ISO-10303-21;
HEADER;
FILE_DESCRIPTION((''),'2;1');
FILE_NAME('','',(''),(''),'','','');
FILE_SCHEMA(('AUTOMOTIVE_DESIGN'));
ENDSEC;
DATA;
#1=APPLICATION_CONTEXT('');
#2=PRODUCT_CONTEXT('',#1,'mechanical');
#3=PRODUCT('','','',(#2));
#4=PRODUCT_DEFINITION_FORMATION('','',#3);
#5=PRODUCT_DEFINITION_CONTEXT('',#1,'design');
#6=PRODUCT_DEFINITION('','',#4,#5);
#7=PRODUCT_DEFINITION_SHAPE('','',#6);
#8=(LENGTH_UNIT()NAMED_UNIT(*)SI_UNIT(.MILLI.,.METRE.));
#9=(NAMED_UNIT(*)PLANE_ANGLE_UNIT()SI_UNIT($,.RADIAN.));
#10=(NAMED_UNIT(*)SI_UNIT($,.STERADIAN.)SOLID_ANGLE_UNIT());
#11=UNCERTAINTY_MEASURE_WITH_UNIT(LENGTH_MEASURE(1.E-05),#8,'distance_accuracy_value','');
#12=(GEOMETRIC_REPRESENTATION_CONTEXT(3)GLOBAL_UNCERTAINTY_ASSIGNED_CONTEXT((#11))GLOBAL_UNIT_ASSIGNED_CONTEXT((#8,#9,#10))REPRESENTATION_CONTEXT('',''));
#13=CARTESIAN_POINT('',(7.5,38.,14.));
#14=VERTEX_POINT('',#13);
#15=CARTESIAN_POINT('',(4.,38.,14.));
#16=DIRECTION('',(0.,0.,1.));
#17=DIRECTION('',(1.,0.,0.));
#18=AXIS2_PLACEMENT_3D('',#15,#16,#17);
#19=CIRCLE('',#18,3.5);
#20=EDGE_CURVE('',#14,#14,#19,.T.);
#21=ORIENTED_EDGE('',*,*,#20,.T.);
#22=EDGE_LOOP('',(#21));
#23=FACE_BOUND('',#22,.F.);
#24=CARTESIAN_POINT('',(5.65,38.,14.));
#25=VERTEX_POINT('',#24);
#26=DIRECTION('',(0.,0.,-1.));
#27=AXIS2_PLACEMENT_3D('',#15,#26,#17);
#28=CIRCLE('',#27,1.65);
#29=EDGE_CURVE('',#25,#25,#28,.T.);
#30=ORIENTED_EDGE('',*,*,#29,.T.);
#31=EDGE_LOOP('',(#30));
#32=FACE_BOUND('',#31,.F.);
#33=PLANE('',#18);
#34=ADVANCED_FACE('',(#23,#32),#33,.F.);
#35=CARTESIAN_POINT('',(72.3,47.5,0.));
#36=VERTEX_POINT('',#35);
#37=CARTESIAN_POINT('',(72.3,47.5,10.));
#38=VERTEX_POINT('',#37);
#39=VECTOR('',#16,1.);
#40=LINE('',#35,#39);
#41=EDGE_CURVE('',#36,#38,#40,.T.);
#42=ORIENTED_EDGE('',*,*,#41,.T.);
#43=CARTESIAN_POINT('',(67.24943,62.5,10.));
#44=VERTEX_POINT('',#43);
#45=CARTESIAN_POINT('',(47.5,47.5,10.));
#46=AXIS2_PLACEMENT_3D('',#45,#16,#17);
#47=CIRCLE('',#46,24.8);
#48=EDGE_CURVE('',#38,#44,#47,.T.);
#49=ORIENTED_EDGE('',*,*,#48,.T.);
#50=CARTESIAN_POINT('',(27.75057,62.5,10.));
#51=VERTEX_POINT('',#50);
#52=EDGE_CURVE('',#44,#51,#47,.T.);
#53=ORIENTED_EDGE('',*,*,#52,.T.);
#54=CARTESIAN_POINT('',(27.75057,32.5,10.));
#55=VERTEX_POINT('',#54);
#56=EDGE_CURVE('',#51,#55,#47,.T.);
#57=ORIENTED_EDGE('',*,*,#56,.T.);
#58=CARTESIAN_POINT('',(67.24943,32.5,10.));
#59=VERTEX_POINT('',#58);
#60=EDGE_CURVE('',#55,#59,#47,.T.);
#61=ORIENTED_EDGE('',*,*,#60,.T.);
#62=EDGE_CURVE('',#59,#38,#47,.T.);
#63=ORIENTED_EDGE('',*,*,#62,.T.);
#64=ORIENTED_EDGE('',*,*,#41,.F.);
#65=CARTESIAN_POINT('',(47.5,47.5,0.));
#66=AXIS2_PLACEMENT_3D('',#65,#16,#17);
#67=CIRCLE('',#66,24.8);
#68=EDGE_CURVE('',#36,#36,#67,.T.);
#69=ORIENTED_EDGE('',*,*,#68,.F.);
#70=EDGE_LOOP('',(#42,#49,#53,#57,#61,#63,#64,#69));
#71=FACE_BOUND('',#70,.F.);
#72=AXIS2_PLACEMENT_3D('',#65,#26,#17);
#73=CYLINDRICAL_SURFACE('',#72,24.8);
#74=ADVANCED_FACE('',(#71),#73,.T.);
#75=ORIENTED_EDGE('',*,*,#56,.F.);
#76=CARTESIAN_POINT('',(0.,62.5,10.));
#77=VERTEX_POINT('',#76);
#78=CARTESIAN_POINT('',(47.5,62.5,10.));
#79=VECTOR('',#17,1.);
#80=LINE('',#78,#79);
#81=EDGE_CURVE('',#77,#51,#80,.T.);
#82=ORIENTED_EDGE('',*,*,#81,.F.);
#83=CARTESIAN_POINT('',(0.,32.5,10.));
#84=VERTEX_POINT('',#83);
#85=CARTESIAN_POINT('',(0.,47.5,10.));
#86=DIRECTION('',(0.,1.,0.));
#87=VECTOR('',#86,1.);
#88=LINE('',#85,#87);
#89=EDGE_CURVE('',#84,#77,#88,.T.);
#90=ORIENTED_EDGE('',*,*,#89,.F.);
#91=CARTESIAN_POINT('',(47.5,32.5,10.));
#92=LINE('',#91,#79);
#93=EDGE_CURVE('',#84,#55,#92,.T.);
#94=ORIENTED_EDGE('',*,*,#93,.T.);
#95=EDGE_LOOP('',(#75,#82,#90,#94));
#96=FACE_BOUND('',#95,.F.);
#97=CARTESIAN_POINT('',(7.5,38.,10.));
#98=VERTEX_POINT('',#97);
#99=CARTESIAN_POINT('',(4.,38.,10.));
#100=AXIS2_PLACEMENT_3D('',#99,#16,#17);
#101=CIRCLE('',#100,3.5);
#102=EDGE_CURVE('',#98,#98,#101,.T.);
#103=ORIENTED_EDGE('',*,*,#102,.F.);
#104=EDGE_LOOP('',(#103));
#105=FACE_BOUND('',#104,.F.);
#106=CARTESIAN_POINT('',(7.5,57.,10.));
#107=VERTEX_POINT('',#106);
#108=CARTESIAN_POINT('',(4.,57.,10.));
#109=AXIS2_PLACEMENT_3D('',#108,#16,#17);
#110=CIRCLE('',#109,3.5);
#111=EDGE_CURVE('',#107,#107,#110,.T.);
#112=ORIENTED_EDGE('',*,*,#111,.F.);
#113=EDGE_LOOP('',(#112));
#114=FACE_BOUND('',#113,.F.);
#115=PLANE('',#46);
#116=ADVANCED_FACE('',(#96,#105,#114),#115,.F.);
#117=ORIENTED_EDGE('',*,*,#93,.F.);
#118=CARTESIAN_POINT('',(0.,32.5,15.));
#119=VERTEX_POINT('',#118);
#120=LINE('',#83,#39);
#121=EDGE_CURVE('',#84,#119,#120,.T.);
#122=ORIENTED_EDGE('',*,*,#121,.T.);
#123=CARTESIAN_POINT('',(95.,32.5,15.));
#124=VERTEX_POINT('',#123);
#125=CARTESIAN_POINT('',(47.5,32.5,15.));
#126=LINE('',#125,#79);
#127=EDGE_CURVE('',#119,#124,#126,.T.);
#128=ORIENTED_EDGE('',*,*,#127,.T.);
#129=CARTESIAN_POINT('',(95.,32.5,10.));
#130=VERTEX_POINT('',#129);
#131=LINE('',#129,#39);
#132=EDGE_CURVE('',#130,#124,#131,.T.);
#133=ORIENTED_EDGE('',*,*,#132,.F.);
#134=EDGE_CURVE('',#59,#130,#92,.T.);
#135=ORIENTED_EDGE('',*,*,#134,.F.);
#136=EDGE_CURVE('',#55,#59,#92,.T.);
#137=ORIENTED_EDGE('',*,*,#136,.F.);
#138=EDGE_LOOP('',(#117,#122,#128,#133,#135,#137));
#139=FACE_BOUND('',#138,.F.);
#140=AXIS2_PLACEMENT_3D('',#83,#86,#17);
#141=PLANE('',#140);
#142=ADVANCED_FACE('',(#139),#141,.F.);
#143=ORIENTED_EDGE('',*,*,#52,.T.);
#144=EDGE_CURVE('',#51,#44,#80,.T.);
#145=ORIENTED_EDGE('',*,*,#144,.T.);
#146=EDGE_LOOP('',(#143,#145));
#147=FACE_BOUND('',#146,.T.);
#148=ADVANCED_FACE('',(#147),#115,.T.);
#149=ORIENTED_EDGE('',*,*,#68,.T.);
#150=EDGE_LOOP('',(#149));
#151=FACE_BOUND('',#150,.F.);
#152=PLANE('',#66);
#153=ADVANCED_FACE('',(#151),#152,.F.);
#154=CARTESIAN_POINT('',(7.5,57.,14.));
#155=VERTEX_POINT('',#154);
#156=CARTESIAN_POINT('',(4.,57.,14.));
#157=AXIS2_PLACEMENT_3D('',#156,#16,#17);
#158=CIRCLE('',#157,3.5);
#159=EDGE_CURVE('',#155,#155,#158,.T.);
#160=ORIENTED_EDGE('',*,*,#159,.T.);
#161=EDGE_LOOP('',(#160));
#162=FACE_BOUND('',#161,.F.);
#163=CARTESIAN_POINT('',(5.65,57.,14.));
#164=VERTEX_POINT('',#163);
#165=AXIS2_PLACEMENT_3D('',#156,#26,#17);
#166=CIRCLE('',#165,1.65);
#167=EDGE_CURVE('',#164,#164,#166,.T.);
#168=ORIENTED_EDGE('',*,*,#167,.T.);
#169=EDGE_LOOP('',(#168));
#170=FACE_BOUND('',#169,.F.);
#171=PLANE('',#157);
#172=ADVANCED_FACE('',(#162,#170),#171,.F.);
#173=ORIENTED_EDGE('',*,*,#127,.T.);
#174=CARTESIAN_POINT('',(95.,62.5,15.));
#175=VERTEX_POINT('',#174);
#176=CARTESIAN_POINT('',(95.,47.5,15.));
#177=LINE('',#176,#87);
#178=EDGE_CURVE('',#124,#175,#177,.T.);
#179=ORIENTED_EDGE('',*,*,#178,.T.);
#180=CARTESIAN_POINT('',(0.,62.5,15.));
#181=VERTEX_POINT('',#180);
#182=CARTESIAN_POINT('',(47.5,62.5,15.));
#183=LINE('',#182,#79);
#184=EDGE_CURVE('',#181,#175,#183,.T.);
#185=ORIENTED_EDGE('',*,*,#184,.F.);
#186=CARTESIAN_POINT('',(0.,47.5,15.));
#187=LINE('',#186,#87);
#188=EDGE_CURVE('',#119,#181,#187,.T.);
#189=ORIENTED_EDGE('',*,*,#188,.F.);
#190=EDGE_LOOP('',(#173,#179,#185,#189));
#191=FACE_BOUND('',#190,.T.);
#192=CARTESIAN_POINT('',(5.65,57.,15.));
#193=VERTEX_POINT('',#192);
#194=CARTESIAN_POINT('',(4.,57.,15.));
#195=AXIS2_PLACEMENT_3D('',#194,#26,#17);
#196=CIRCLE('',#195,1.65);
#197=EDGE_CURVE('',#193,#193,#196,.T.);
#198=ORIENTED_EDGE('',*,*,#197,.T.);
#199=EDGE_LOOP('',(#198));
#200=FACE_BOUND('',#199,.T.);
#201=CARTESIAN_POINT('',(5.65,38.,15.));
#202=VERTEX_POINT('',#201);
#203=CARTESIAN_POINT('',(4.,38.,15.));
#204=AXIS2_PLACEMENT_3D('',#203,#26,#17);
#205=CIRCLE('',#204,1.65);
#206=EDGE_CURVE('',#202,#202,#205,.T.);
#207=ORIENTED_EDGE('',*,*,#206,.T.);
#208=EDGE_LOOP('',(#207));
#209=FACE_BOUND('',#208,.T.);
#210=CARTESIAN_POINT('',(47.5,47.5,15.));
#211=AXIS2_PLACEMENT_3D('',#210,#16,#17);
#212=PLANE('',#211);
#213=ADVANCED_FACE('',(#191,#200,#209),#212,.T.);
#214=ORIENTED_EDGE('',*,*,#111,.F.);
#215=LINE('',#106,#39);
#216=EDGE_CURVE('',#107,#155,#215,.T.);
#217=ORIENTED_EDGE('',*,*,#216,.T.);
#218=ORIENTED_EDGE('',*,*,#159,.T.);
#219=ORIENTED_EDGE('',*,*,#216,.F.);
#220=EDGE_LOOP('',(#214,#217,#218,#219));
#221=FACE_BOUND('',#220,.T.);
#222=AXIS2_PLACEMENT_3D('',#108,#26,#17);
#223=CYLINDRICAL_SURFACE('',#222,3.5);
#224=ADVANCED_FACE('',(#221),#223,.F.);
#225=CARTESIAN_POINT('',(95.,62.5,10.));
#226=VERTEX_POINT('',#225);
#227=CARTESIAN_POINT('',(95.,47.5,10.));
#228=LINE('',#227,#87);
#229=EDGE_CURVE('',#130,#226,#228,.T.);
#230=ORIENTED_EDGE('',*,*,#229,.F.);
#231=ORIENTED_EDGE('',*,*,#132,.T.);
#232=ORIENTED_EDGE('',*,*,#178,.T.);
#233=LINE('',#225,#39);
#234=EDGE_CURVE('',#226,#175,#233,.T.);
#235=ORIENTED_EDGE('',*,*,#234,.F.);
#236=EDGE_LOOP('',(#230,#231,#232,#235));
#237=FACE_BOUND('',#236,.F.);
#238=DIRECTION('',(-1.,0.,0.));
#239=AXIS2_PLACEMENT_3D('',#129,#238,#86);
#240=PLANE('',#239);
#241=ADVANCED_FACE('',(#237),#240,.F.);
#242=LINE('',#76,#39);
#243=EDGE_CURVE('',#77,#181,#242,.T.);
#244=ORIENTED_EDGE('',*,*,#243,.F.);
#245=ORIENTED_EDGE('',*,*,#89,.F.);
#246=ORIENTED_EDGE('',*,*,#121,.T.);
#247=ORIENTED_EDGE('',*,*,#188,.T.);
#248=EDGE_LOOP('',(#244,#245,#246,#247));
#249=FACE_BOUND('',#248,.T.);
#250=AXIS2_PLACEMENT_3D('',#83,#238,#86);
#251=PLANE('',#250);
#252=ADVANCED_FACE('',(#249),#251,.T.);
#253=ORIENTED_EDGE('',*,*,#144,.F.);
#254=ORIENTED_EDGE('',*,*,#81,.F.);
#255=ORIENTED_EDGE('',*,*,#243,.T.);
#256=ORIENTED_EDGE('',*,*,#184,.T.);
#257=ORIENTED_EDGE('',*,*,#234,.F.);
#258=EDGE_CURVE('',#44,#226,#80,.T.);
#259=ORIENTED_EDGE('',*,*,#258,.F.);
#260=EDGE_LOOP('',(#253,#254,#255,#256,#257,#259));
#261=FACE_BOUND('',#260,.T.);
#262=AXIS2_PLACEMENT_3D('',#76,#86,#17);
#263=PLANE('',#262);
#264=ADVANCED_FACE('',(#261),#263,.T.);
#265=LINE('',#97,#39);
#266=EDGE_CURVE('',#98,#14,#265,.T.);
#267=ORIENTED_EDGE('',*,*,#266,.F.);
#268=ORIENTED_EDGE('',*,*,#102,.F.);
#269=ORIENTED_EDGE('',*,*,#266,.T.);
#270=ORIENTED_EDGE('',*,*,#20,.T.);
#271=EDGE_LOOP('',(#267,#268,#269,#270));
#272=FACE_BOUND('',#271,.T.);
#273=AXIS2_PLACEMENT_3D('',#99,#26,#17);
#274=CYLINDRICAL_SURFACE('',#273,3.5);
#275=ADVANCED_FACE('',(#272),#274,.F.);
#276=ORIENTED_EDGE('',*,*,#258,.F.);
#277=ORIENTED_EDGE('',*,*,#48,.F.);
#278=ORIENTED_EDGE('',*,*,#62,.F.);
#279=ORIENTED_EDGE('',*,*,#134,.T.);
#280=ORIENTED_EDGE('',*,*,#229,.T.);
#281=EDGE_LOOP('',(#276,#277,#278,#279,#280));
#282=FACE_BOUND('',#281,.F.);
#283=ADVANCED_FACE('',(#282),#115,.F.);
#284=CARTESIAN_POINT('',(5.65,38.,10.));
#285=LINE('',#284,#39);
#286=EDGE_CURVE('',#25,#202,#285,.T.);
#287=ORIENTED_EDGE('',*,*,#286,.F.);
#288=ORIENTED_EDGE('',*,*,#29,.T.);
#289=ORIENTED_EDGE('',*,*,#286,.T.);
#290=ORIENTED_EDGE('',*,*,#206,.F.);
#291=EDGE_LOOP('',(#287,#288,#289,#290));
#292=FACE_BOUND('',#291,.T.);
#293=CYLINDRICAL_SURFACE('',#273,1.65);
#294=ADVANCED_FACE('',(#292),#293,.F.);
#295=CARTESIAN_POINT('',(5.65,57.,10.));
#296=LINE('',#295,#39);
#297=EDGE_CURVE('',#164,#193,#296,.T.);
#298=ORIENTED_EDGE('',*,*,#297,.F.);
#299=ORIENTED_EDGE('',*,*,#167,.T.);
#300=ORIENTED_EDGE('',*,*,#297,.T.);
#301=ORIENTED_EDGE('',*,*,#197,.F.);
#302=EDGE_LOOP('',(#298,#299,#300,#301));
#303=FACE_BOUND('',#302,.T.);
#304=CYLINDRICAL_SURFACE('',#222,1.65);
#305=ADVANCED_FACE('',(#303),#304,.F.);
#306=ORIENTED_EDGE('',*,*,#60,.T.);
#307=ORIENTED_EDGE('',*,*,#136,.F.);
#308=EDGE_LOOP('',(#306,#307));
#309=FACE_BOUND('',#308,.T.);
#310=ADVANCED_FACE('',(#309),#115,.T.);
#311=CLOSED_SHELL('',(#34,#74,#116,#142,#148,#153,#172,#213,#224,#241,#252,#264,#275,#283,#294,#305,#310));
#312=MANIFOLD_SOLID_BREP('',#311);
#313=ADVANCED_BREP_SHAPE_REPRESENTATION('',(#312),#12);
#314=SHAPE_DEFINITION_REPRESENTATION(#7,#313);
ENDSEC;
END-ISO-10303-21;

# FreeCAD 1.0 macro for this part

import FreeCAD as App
import Part
import Sketcher
from FreeCAD import Vector
Q = App.Units.Quantity


def add_polygon(sketch, points):
    """Adds a closed chain of lines whose ends are joined by coincident constraints."""
    first, n = sketch.GeometryCount, len(points)
    for a, b in zip(points, points[1:] + points[:1]):
        sketch.addGeometry(Part.LineSegment(App.Vector(*a, 0), App.Vector(*b, 0)), False)
    for i in range(n):
        sketch.addConstraint(Sketcher.Constraint("Coincident", first + i, 2, first + (i + 1) % n, 1))

doc = App.newDocument("Part")
params = doc.addObject("Spreadsheet::Sheet", "Params")
for row, (alias, value) in enumerate([
    ("sketch1_diameter", "7 mm"),
    ("pad1_length", "4 mm"),
    ("sketch2_diameter", "3.3 mm"),
    ("pad2_length", "20 mm"),
    ("sketch3_diameter", "7 mm"),
    ("pad3_length", "4 mm"),
    ("sketch4_diameter", "3.3 mm"),
    ("pad4_length", "20 mm"),
    ("sketch5_width", "95 mm"),
    ("sketch5_height", "30 mm"),
    ("pad5_length", "5 mm"),
    ("sketch6_diameter", "49.6 mm"),
    ("pad6_length", "10 mm"),
], start=1):
    params.set(f"A{row}", alias)
    params.set(f"B{row}", "=" + value)
    params.setAlias(f"B{row}", alias)

body = doc.addObject("PartDesign::Body", "Body")

# Sketch on XY plane
sketch1 = body.newObject("Sketcher::SketchObject", "Sketch")
sketch1.AttachmentSupport = (doc.getObject("XY_Plane"), [""])
sketch1.MapMode = "FlatFace"
sketch1.addGeometry(Part.Circle(Vector(0, 0, 0), Vector(0, 0, 1), 3.5), False)
sketch1.addConstraint([
    Sketcher.Constraint("Coincident", 0, 3, -1, 1),
    Sketcher.Constraint("Diameter", 0, Q("7 mm")),
])
sketch1.setExpression("Constraints[1]", "Params.sketch1_diameter")
pad1 = body.newObject("PartDesign::Pad", "Pad")
pad1.Profile = sketch1
pad1.setExpression("Length", "Params.pad1_length")
body2 = doc.addObject("PartDesign::Body", "Body001")

# Sketch on XY plane
sketch2 = body2.newObject("Sketcher::SketchObject", "Sketch001")
sketch2.AttachmentSupport = (doc.getObject("XY_Plane001"), [""])
sketch2.MapMode = "FlatFace"
sketch2.addGeometry(Part.Circle(Vector(0, 0, 0), Vector(0, 0, 1), 1.6), False)
sketch2.addConstraint([
    Sketcher.Constraint("Coincident", 0, 3, -1, 1),
    Sketcher.Constraint("Diameter", 0, Q("3.3 mm")),
])
sketch2.setExpression("Constraints[1]", "Params.sketch2_diameter")
pad2 = body2.newObject("PartDesign::Pad", "Pad001")
pad2.Profile = sketch2
pad2.setExpression("Length", "Params.pad2_length")
doc.recompute()

boolean = body2.newObject("PartDesign::Boolean", "Boolean")
boolean.Type = "Fuse"
boolean.addObjects([body])
body3 = doc.addObject("PartDesign::Body", "Body002")
doc.recompute()

body2.Placement = App.Placement(Vector(4, 57, 10), App.Rotation(Vector(0, 0, 1), 0))
boolean2 = body3.newObject("PartDesign::Boolean", "Boolean001")
boolean2.Type = "Fuse"
boolean2.addObjects([body2])
body4 = doc.addObject("PartDesign::Body", "Body003")

# Sketch on XY plane
sketch3 = body4.newObject("Sketcher::SketchObject", "Sketch002")
sketch3.AttachmentSupport = (doc.getObject("XY_Plane003"), [""])
sketch3.MapMode = "FlatFace"
sketch3.addGeometry(Part.Circle(Vector(0, 0, 0), Vector(0, 0, 1), 3.5), False)
sketch3.addConstraint([
    Sketcher.Constraint("Coincident", 0, 3, -1, 1),
    Sketcher.Constraint("Diameter", 0, Q("7 mm")),
])
sketch3.setExpression("Constraints[1]", "Params.sketch3_diameter")
pad3 = body4.newObject("PartDesign::Pad", "Pad002")
pad3.Profile = sketch3
pad3.setExpression("Length", "Params.pad3_length")
body5 = doc.addObject("PartDesign::Body", "Body004")

# Sketch on XY plane
sketch4 = body5.newObject("Sketcher::SketchObject", "Sketch003")
sketch4.AttachmentSupport = (doc.getObject("XY_Plane004"), [""])
sketch4.MapMode = "FlatFace"
sketch4.addGeometry(Part.Circle(Vector(0, 0, 0), Vector(0, 0, 1), 1.6), False)
sketch4.addConstraint([
    Sketcher.Constraint("Coincident", 0, 3, -1, 1),
    Sketcher.Constraint("Diameter", 0, Q("3.3 mm")),
])
sketch4.setExpression("Constraints[1]", "Params.sketch4_diameter")
pad4 = body5.newObject("PartDesign::Pad", "Pad003")
pad4.Profile = sketch4
pad4.setExpression("Length", "Params.pad4_length")
doc.recompute()

boolean3 = body5.newObject("PartDesign::Boolean", "Boolean002")
boolean3.Type = "Fuse"
boolean3.addObjects([body4])
body6 = doc.addObject("PartDesign::Body", "Body005")
body6.AllowCompound = True
doc.recompute()

body5.Placement = App.Placement(Vector(4, 38, 10), App.Rotation(Vector(0, 0, 1), 0))
boolean4 = body6.newObject("PartDesign::Boolean", "Boolean003")
boolean4.Type = "Fuse"
boolean4.addObjects([body5])
doc.recompute()

boolean5 = body6.newObject("PartDesign::Boolean", "Boolean004")
boolean5.Type = "Fuse"
boolean5.addObjects([body3])
body7 = doc.addObject("PartDesign::Body", "Body006")

# Sketch on XY plane
sketch5 = body7.newObject("Sketcher::SketchObject", "Sketch004")
sketch5.AttachmentSupport = (doc.getObject("XY_Plane006"), [""])
sketch5.MapMode = "FlatFace"
sketch5.AttachmentOffset = App.Placement(Vector(0, 0, 10), App.Rotation())
add_polygon(sketch5, [(0, 62), (0, 32), (95, 32), (95, 62)])  # lines 0-3
sketch5.addConstraint([
    Sketcher.Constraint("Vertical", 0),
    Sketcher.Constraint("Horizontal", 1),
    Sketcher.Constraint("Vertical", 2),
    Sketcher.Constraint("Horizontal", 3),
    Sketcher.Constraint("PointOnObject", 0, 2, -2),
    Sketcher.Constraint("DistanceX", 1, 1, 1, 2, Q("95 mm")),
    Sketcher.Constraint("DistanceY", 0, 2, 0, 1, Q("30 mm")),
    Sketcher.Constraint("DistanceY", -1, 1, 0, 2, Q("32.5 mm")),
])
sketch5.setExpression("Constraints[9]", "Params.sketch5_width")
sketch5.setExpression("Constraints[10]", "Params.sketch5_height")
pad5 = body7.newObject("PartDesign::Pad", "Pad004")
pad5.Profile = sketch5
pad5.setExpression("Length", "Params.pad5_length")
body8 = doc.addObject("PartDesign::Body", "Body007")

# Sketch on XY plane
sketch6 = body8.newObject("Sketcher::SketchObject", "Sketch005")
sketch6.AttachmentSupport = (doc.getObject("XY_Plane007"), [""])
sketch6.MapMode = "FlatFace"
sketch6.addGeometry(Part.Circle(Vector(48, 48, 0), Vector(0, 0, 1), 25), False)
sketch6.addConstraint([
    Sketcher.Constraint("Diameter", 0, Q("49.6 mm")),
    Sketcher.Constraint("DistanceX", -1, 1, 0, 3, Q("47.5 mm")),
    Sketcher.Constraint("DistanceY", -1, 1, 0, 3, Q("47.5 mm")),
])
sketch6.setExpression("Constraints[0]", "Params.sketch6_diameter")
pad6 = body8.newObject("PartDesign::Pad", "Pad005")
pad6.Profile = sketch6
pad6.setExpression("Length", "Params.pad6_length")
doc.recompute()

boolean6 = body8.newObject("PartDesign::Boolean", "Boolean005")
boolean6.Type = "Fuse"
boolean6.addObjects([body7])
doc.recompute()

boolean7 = body8.newObject("PartDesign::Boolean", "Boolean006")
boolean7.Type = "Cut"
boolean7.addObjects([body6])

doc.recompute()
